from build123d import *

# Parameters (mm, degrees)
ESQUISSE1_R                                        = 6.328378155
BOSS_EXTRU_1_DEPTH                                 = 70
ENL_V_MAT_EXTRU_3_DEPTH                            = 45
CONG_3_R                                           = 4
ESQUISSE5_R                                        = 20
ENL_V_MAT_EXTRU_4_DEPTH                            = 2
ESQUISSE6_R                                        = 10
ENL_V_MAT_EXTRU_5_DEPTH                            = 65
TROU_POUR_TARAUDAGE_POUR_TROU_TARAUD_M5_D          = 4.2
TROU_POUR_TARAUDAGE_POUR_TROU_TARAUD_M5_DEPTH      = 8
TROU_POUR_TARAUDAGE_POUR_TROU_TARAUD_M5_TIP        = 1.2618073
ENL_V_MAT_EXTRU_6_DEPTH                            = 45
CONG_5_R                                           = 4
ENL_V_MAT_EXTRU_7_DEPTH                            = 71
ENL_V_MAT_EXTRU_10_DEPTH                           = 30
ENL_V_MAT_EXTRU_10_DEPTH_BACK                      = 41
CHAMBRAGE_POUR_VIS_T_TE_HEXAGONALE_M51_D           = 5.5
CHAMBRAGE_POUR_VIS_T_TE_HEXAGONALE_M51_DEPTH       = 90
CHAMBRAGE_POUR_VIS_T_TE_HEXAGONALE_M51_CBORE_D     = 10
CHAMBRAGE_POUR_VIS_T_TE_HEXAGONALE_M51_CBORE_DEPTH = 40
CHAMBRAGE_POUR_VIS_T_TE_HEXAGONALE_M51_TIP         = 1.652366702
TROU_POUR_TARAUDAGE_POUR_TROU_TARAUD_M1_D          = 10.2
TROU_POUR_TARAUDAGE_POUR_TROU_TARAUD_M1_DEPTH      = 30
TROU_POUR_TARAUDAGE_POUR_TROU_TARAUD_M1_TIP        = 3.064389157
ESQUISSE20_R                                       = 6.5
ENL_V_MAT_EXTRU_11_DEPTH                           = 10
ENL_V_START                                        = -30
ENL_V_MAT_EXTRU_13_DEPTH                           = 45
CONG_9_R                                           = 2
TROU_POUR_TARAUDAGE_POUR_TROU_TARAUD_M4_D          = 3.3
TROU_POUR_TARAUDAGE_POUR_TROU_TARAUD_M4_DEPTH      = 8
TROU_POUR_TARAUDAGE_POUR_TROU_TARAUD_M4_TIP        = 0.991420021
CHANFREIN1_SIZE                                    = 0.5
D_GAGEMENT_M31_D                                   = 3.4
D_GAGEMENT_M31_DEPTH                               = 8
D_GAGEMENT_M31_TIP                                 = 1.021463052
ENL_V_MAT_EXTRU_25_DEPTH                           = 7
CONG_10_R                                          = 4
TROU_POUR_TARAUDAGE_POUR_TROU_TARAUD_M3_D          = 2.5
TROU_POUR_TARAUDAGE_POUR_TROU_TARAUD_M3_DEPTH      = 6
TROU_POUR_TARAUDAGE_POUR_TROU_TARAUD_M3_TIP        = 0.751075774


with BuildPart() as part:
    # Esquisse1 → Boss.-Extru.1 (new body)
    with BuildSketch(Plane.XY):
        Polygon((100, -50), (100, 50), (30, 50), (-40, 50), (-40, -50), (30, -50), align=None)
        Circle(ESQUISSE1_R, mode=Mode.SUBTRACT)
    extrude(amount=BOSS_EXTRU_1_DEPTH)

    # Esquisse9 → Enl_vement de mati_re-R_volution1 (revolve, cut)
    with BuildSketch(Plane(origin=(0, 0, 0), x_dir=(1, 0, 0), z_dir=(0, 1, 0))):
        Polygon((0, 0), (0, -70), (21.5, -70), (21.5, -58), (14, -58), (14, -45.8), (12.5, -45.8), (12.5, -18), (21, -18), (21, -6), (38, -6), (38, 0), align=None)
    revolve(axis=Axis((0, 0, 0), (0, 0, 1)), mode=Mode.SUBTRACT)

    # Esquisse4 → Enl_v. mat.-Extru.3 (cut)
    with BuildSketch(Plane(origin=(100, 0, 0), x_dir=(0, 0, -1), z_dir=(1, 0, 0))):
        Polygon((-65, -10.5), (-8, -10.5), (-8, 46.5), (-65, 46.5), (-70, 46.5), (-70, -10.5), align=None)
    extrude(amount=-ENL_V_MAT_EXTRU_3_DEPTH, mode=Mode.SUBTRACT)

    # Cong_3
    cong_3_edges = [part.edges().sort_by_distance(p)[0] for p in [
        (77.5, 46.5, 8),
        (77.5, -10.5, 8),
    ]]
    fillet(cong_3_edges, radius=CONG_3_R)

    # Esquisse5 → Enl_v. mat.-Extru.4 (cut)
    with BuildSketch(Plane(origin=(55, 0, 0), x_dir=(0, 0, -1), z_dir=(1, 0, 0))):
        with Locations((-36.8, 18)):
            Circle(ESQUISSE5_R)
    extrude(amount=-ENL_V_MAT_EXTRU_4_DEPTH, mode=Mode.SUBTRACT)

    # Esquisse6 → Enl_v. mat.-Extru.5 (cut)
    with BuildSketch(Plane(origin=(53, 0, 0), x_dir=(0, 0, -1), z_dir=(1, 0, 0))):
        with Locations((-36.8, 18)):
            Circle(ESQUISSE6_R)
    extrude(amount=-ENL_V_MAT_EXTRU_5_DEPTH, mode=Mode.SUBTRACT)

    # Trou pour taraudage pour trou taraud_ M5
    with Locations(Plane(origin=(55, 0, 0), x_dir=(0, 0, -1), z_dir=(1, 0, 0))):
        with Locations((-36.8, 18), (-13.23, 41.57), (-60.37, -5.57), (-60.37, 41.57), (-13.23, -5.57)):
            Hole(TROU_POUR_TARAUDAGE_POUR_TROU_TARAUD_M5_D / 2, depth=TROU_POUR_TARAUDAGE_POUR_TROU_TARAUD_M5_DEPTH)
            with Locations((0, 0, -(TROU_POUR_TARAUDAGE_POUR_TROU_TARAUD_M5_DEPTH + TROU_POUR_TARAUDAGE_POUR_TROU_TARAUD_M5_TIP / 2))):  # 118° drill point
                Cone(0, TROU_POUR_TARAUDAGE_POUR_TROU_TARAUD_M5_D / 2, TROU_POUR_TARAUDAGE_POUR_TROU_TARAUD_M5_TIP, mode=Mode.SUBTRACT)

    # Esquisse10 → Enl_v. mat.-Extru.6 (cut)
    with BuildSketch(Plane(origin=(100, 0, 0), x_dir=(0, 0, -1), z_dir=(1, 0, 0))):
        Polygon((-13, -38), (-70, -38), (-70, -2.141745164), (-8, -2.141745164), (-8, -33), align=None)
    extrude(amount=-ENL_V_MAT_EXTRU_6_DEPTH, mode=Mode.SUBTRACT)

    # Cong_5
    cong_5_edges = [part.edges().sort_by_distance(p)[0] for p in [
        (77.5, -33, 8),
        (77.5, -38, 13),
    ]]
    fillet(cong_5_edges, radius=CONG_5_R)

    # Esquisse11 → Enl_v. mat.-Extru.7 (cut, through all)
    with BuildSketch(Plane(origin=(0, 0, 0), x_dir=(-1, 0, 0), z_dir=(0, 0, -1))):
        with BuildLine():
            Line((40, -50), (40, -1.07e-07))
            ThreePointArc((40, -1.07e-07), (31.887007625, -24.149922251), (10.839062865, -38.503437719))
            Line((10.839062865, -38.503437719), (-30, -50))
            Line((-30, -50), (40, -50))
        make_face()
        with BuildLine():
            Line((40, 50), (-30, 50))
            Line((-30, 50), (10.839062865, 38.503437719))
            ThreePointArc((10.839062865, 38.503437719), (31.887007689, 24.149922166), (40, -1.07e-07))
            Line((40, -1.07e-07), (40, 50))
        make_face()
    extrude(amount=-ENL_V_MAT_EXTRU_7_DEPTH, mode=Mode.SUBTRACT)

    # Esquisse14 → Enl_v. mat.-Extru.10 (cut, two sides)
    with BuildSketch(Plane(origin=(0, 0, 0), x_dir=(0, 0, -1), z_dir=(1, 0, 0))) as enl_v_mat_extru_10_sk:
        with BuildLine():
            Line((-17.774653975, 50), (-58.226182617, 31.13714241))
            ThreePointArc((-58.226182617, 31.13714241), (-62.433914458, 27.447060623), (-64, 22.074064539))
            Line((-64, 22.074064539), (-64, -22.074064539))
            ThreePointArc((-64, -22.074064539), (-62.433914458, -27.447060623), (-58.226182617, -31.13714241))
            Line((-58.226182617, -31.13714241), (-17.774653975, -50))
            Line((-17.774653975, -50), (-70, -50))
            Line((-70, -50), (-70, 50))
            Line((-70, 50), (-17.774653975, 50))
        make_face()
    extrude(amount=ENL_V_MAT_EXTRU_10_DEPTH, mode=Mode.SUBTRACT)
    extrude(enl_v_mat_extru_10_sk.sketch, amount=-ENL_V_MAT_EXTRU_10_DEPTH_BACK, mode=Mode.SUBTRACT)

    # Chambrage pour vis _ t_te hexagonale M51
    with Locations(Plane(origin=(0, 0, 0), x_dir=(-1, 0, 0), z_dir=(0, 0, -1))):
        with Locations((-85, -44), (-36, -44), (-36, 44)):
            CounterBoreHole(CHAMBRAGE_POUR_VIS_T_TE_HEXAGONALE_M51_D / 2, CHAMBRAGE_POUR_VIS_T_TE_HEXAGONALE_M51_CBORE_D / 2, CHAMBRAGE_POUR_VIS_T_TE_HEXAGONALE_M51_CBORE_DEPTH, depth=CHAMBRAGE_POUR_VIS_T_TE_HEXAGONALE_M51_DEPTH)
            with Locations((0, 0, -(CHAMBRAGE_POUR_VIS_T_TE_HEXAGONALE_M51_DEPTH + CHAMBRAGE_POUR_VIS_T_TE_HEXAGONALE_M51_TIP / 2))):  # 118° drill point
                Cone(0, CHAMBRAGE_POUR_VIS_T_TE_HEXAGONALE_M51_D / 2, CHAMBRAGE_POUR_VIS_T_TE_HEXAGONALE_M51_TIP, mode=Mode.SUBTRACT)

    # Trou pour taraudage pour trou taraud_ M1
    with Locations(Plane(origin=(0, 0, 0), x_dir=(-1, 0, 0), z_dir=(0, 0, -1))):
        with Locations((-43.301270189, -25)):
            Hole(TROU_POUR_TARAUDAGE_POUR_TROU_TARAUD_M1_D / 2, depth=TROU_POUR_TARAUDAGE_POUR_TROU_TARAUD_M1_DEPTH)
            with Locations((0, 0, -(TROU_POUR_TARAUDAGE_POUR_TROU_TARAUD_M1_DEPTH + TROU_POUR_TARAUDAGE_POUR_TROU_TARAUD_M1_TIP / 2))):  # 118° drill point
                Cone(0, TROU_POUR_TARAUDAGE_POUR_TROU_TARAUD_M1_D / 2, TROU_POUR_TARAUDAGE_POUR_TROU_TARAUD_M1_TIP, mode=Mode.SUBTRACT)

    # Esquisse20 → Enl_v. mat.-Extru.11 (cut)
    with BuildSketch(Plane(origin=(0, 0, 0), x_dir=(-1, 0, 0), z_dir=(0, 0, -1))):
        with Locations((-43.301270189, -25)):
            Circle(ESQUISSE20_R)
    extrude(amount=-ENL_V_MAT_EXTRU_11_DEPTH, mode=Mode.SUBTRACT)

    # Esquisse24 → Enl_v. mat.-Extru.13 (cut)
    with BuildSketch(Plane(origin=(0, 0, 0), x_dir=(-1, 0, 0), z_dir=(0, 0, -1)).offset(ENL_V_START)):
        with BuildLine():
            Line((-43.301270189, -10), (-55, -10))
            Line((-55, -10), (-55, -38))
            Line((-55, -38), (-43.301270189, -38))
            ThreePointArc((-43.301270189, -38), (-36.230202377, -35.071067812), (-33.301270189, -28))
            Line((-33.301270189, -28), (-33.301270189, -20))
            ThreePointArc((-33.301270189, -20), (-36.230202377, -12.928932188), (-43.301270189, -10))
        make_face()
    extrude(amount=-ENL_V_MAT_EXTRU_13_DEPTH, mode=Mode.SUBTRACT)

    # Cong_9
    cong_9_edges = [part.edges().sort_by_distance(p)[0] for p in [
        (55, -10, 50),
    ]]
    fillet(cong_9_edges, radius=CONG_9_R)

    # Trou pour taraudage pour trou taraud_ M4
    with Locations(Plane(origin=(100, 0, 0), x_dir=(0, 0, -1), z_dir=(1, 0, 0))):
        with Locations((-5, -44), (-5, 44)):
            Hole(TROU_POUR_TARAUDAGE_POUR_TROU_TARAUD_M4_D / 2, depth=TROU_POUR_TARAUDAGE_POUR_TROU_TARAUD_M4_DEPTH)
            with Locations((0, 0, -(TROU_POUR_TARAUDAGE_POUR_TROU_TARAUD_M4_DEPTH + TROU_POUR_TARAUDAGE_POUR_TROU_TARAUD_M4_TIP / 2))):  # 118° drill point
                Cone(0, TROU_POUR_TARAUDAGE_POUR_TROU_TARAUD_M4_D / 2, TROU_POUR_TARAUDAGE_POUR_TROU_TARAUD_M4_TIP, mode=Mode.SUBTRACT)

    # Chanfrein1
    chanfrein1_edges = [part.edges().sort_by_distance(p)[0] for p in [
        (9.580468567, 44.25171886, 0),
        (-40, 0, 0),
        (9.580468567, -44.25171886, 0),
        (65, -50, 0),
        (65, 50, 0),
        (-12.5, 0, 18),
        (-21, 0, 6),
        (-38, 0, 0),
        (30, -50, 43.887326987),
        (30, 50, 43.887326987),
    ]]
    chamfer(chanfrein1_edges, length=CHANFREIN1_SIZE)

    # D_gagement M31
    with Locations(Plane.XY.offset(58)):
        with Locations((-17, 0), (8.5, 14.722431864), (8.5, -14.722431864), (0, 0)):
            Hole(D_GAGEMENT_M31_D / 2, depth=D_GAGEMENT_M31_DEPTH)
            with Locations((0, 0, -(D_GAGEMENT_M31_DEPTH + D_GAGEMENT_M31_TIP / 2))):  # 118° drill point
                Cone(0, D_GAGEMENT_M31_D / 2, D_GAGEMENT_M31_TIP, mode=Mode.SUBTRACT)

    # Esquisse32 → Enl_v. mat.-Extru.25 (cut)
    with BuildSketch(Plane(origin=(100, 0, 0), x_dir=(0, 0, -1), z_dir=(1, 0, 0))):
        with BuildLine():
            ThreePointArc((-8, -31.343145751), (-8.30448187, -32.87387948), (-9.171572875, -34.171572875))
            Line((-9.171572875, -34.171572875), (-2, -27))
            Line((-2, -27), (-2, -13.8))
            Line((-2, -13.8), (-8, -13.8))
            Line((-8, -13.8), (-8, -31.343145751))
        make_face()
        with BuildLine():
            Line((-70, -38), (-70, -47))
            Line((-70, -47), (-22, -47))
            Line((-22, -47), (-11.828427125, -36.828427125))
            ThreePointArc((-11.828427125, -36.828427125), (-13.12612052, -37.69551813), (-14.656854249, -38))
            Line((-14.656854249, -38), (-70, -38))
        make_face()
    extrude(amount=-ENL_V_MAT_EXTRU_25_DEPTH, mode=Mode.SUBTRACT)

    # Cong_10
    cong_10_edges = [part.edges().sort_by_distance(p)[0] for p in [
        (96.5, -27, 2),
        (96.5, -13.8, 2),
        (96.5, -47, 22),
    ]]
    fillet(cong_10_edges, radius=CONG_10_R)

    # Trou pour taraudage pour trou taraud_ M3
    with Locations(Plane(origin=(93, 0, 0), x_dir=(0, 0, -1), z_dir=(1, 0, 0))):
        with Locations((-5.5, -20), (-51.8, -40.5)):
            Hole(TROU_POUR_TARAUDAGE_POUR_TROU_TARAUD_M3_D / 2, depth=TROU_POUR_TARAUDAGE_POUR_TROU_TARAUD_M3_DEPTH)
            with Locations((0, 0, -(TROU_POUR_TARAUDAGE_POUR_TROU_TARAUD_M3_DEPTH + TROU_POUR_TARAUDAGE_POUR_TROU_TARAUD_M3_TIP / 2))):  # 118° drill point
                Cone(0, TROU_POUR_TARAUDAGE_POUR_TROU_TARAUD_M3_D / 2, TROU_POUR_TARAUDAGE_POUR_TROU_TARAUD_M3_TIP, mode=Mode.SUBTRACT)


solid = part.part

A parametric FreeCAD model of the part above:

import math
import FreeCAD as App
import Part
import Sketcher

V = App.Vector
Q = App.Units.Quantity


def edges_at(feature, points):
    """Names of the edges that pass closest to the given points."""
    edges = feature.Shape.Edges
    near = lambda p: min(range(len(edges)), key=lambda i: edges[i].distToShape(Part.Vertex(*p))[0])
    return sorted({f"Edge{near(p) + 1}" for p in points})


def add_polygon(sketch, points):
    """Adds a closed chain of lines whose ends are joined by coincident constraints."""
    first, n = sketch.GeometryCount, len(points)
    for a, b in zip(points, points[1:] + points[:1]):
        sketch.addGeometry(Part.LineSegment(App.Vector(*a, 0), App.Vector(*b, 0)), False)
    for i in range(n):
        sketch.addConstraint(Sketcher.Constraint("Coincident", first + i, 2, first + (i + 1) % n, 1))

doc = App.newDocument("Part")
params = doc.addObject("Spreadsheet::Sheet", "Params")
for row, (alias, value) in enumerate([
    ("sketch1_width", "140 mm"),
    ("sketch1_height", "100 mm"),
    ("pad1_length", "70 mm"),
    ("sketch2_width", "17 mm"),
    ("sketch2_width2", "38 mm"),
    ("sketch2_height", "70 mm"),
    ("sketch2_height2", "12 mm"),
    ("sketch2_height3", "6 mm"),
    ("groove_angle", "360 deg"),
    ("sketch3_width", "57 mm"),
    ("sketch3_height", "62 mm"),
    ("pocket1_length", "45 mm"),
    ("fillet_radius", "4 mm"),
    ("sketch4_diameter", "40 mm"),
    ("pocket2_length", "2 mm"),
    ("sketch5_diameter", "20 mm"),
    ("pocket3_length", "65 mm"),
    ("sketch6_diameter", "4.2 mm"),
    ("hole_diameter", "4.2 mm"),
    ("hole_depth", "8 mm"),
    ("sketch7_height", "57 mm"),
    ("sketch7_height2", "62 mm"),
    ("pocket4_length", "45 mm"),
    ("fillet2_radius", "4 mm"),
    ("sketch8_radius", "40 mm"),
    ("sketch8_width", "70 mm"),
    ("sketch8_height", "50 mm"),
    ("sketch9_radius", "10 mm"),
    ("sketch9_width", "100 mm"),
    ("pocket6_length", "30 mm"),
    ("pocket6_length2", "41 mm"),
    ("sketch10_diameter", "5.5 mm"),
    ("hole2_diameter", "5.5 mm"),
    ("hole2_depth", "90 mm"),
    ("hole2_cbore_diameter", "10 mm"),
    ("hole2_cbore_depth", "40 mm"),
    ("sketch11_diameter", "10.2 mm"),
    ("hole3_diameter", "10.2 mm"),
    ("hole3_depth", "30 mm"),
    ("sketch12_diameter", "13 mm"),
    ("pocket7_length", "10 mm"),
    ("sketch13_radius", "10 mm"),
    ("sketch13_height", "28 mm"),
    ("pocket8_length", "45 mm"),
    ("fillet3_radius", "2 mm"),
    ("sketch14_diameter", "3.3 mm"),
    ("hole4_diameter", "3.3 mm"),
    ("hole4_depth", "8 mm"),
    ("chamfer_size", "0.5 mm"),
    ("sketch15_diameter", "3.4 mm"),
    ("hole5_diameter", "3.4 mm"),
    ("hole5_depth", "8 mm"),
    ("sketch16_radius", "4 mm"),
    ("sketch16_width", "9 mm"),
    ("sketch16_height", "6 mm"),
    ("sketch16_height2", "48 mm"),
    ("sketch16_width2", "13.2 mm"),
    ("pocket9_length", "7 mm"),
    ("fillet4_radius", "4 mm"),
    ("sketch17_diameter", "2.5 mm"),
    ("hole6_diameter", "2.5 mm"),
    ("hole6_depth", "6 mm"),
], start=1):
    params.set(f"A{row}", alias)
    params.set(f"B{row}", "=" + value)
    params.setAlias(f"B{row}", alias)

body = doc.addObject("PartDesign::Body", "Body")

# Sketch on XY plane
sketch1 = doc.addObject("Sketcher::SketchObject", "Sketch")
body.addObject(sketch1)
sketch1.AttachmentSupport = (doc.XY_Plane, [""])
sketch1.MapMode = "FlatFace"
add_polygon(sketch1, [(100, -50), (100, 50), (-40, 50), (-40, -50)])  # lines 0-3
sketch1.addGeometry(Part.Circle(V(0, 0, 0), V(0, 0, 1), 6.328378), False)  # 4
sketch1.addConstraint([
    Sketcher.Constraint("Vertical", 0),
    Sketcher.Constraint("Horizontal", 1),
    Sketcher.Constraint("Vertical", 2),
    Sketcher.Constraint("Horizontal", 3),
    Sketcher.Constraint("Coincident", 4, 3, -1, 1),
    Sketcher.Constraint("DistanceX", 1, 2, 1, 1, 140.0),
    Sketcher.Constraint("DistanceY", 0, 1, 0, 2, 100.0),
    Sketcher.Constraint("DistanceX", -1, 1, 0, 2, 100.0),
    Sketcher.Constraint("DistanceY", -1, 1, 0, 2, 50.0),
    Sketcher.Constraint("Diameter", 4, 12.656756),
])
sketch1.setExpression("Constraints[9]", "Params.sketch1_width")
sketch1.setExpression("Constraints[10]", "Params.sketch1_height")
pad1 = doc.addObject("PartDesign::Pad", "Pad")
body.addObject(pad1)
pad1.Profile = sketch1
pad1.setExpression("Length", "Params.pad1_length")

# Sketch on XZ plane
sketch2 = doc.addObject("Sketcher::SketchObject", "Sketch001")
body.addObject(sketch2)
sketch2.AttachmentSupport = (doc.XZ_Plane, [""])
sketch2.MapMode = "FlatFace"
add_polygon(sketch2, [(0, 0), (0, 70), (21.5, 70), (21.5, 58), (14, 58), (14, 45.8), (12.5, 45.8), (12.5, 18), (21, 18), (21, 6), (38, 6), (38, 0)])  # lines 0-11
sketch2.addConstraint([
    Sketcher.Constraint("Vertical", 0),
    Sketcher.Constraint("Horizontal", 1),
    Sketcher.Constraint("Vertical", 2),
    Sketcher.Constraint("Horizontal", 3),
    Sketcher.Constraint("Vertical", 4),
    Sketcher.Constraint("Horizontal", 5),
    Sketcher.Constraint("Vertical", 6),
    Sketcher.Constraint("Horizontal", 7),
    Sketcher.Constraint("Vertical", 8),
    Sketcher.Constraint("Horizontal", 9),
    Sketcher.Constraint("Vertical", 10),
    Sketcher.Constraint("Horizontal", 11),
    Sketcher.Constraint("Coincident", 11, 2, -1, 1),
    Sketcher.Constraint("Equal", 2, 8),
    Sketcher.Constraint("DistanceX", 9, 1, 9, 2, 17.0),
    Sketcher.Constraint("DistanceX", 11, 2, 11, 1, 38.0),
    Sketcher.Constraint("DistanceY", 0, 1, 0, 2, 70.0),
    Sketcher.Constraint("DistanceY", 2, 2, 2, 1, 12.0),
    Sketcher.Constraint("DistanceY", 10, 2, 10, 1, 6.0),
    Sketcher.Constraint("DistanceX", 1, 1, 1, 2, 21.5),
    Sketcher.Constraint("DistanceX", 3, 2, 3, 1, 7.5),
    Sketcher.Constraint("DistanceX", 5, 2, 5, 1, 1.5),
    Sketcher.Constraint("DistanceY", 4, 2, 4, 1, 12.2),
])
sketch2.setExpression("Constraints[26]", "Params.sketch2_width")
sketch2.setExpression("Constraints[27]", "Params.sketch2_width2")
sketch2.setExpression("Constraints[28]", "Params.sketch2_height")
sketch2.setExpression("Constraints[29]", "Params.sketch2_height2")
sketch2.setExpression("Constraints[30]", "Params.sketch2_height3")
groove = doc.addObject("PartDesign::Groove", "Groove")
body.addObject(groove)
groove.Profile = sketch2
groove.ReferenceAxis = (sketch2, ["V_Axis"])
groove.setExpression("Angle", "Params.groove_angle")

# Sketch on YZ plane
sketch3 = doc.addObject("Sketcher::SketchObject", "Sketch002")
body.addObject(sketch3)
sketch3.AttachmentSupport = (doc.YZ_Plane, [""])
sketch3.MapMode = "FlatFace"
sketch3.AttachmentOffset = App.Placement(V(0, 0, 100), App.Rotation())
add_polygon(sketch3, [(-10.5, 8), (46.5, 8), (46.5, 70), (-10.5, 70)])  # lines 0-3
sketch3.addConstraint([
    Sketcher.Constraint("Horizontal", 0),
    Sketcher.Constraint("Vertical", 1),
    Sketcher.Constraint("Horizontal", 2),
    Sketcher.Constraint("Vertical", 3),
    Sketcher.Constraint("DistanceX", 0, 1, 0, 2, 57.0),
    Sketcher.Constraint("DistanceY", 1, 1, 1, 2, 62.0),
    Sketcher.Constraint("DistanceY", -1, 1, 0, 2, 8.0),
    Sketcher.Constraint("DistanceX", -1, 1, 0, 2, 46.5),
])
sketch3.setExpression("Constraints[8]", "Params.sketch3_width")
sketch3.setExpression("Constraints[9]", "Params.sketch3_height")
pocket1 = doc.addObject("PartDesign::Pocket", "Pocket")
body.addObject(pocket1)
pocket1.Profile = sketch3
pocket1.setExpression("Length", "Params.pocket1_length")
doc.recompute()

fillet = doc.addObject("PartDesign::Fillet", "Fillet")
body.addObject(fillet)
fillet.Base = (pocket1, edges_at(pocket1, [(77.5, 46.5, 8), (77.5, -10.5, 8)]))
fillet.setExpression("Radius", "Params.fillet_radius")

# Sketch on YZ plane
sketch4 = doc.addObject("Sketcher::SketchObject", "Sketch003")
body.addObject(sketch4)
sketch4.AttachmentSupport = (doc.YZ_Plane, [""])
sketch4.MapMode = "FlatFace"
sketch4.AttachmentOffset = App.Placement(V(0, 0, 55), App.Rotation())
sketch4.addGeometry(Part.Circle(V(18, 36.8, 0), V(0, 0, 1), 20), False)
sketch4.addConstraint([
    Sketcher.Constraint("Diameter", 0, 40.0),
    Sketcher.Constraint("DistanceX", -1, 1, 0, 3, 18.0),
    Sketcher.Constraint("DistanceY", -1, 1, 0, 3, 36.8),
])
sketch4.setExpression("Constraints[0]", "Params.sketch4_diameter")
pocket2 = doc.addObject("PartDesign::Pocket", "Pocket001")
body.addObject(pocket2)
pocket2.Profile = sketch4
pocket2.setExpression("Length", "Params.pocket2_length")

# Sketch on YZ plane
sketch5 = doc.addObject("Sketcher::SketchObject", "Sketch004")
body.addObject(sketch5)
sketch5.AttachmentSupport = (doc.YZ_Plane, [""])
sketch5.MapMode = "FlatFace"
sketch5.AttachmentOffset = App.Placement(V(0, 0, 53), App.Rotation())
sketch5.addGeometry(Part.Circle(V(18, 36.8, 0), V(0, 0, 1), 10), False)
sketch5.addConstraint([
    Sketcher.Constraint("Diameter", 0, 20.0),
    Sketcher.Constraint("DistanceX", -1, 1, 0, 3, 18.0),
    Sketcher.Constraint("DistanceY", -1, 1, 0, 3, 36.8),
])
sketch5.setExpression("Constraints[0]", "Params.sketch5_diameter")
pocket3 = doc.addObject("PartDesign::Pocket", "Pocket002")
body.addObject(pocket3)
pocket3.Profile = sketch5
pocket3.setExpression("Length", "Params.pocket3_length")

# Sketch on YZ plane
sketch6 = doc.addObject("Sketcher::SketchObject", "Sketch005")
body.addObject(sketch6)
sketch6.AttachmentSupport = (doc.YZ_Plane, [""])
sketch6.MapMode = "FlatFace"
sketch6.AttachmentOffset = App.Placement(V(0, 0, 55), App.Rotation())
sketch6.addGeometry([
    Part.Circle(V(18, 36.8, 0), V(0, 0, 1), 2.1),  # 0
    Part.Circle(V(41.57, 13.23, 0), V(0, 0, 1), 2.1),  # 1
    Part.Circle(V(-5.57, 60.37, 0), V(0, 0, 1), 2.1),  # 2
    Part.Circle(V(41.57, 60.37, 0), V(0, 0, 1), 2.1),  # 3
    Part.Circle(V(-5.57, 13.23, 0), V(0, 0, 1), 2.1),  # 4
], False)
sketch6.addConstraint([
    Sketcher.Constraint("Equal", 0, 1),
    Sketcher.Constraint("Equal", 1, 2),
    Sketcher.Constraint("Equal", 2, 3),
    Sketcher.Constraint("Equal", 3, 4),
    Sketcher.Constraint("Horizontal", 2, 3, 3, 3),
    Sketcher.Constraint("Horizontal", 1, 3, 4, 3),
    Sketcher.Constraint("Vertical", 1, 3, 3, 3),
    Sketcher.Constraint("Vertical", 2, 3, 4, 3),
    Sketcher.Constraint("Diameter", 0, 4.2),
    Sketcher.Constraint("DistanceX", -1, 1, 0, 3, 18.0),
    Sketcher.Constraint("DistanceY", -1, 1, 0, 3, 36.8),
    Sketcher.Constraint("DistanceX", -1, 1, 1, 3, 41.57),
    Sketcher.Constraint("DistanceY", -1, 1, 1, 3, 13.23),
    Sketcher.Constraint("DistanceX", 2, 3, -1, 1, 5.57),
    Sketcher.Constraint("DistanceY", -1, 1, 2, 3, 60.37),
])
sketch6.setExpression("Constraints[8]", "Params.sketch6_diameter")
doc.recompute()
hole = doc.addObject("PartDesign::Hole", "Hole")
body.addObject(hole)
hole.Profile = sketch6
hole.ThreadType = "None"
hole.setExpression("Diameter", "Params.hole_diameter")
hole.DepthType = "Dimension"
hole.setExpression("Depth", "Params.hole_depth")
hole.DrillPoint = "Angled"
hole.DrillPointAngle = 118

# Sketch on YZ plane
sketch7 = doc.addObject("Sketcher::SketchObject", "Sketch006")
body.addObject(sketch7)
sketch7.AttachmentSupport = (doc.YZ_Plane, [""])
sketch7.MapMode = "FlatFace"
sketch7.AttachmentOffset = App.Placement(V(0, 0, 100), App.Rotation())
add_polygon(sketch7, [(-38, 70), (-38, 13), (-33, 8), (-2.141745, 8), (-2.141745, 70)])  # lines 0-4
sketch7.addConstraint([
    Sketcher.Constraint("Vertical", 0),
    Sketcher.Constraint("Horizontal", 2),
    Sketcher.Constraint("Vertical", 3),
    Sketcher.Constraint("Horizontal", 4),
    Sketcher.Constraint("DistanceY", 0, 2, 0, 1, 57.0),
    Sketcher.Constraint("DistanceY", 3, 1, 3, 2, 62.0),
    Sketcher.Constraint("Angle", 1, Q("-45 deg")),
    Sketcher.Constraint("DistanceX", 0, 2, -1, 1, 38.0),
    Sketcher.Constraint("DistanceY", -1, 1, 0, 2, 13.0),
    Sketcher.Constraint("DistanceX", 2, 1, 2, 2, 30.858255),
])
sketch7.setExpression("Constraints[9]", "Params.sketch7_height")
sketch7.setExpression("Constraints[10]", "Params.sketch7_height2")
pocket4 = doc.addObject("PartDesign::Pocket", "Pocket003")
body.addObject(pocket4)
pocket4.Profile = sketch7
pocket4.setExpression("Length", "Params.pocket4_length")
doc.recompute()

fillet2 = doc.addObject("PartDesign::Fillet", "Fillet001")
body.addObject(fillet2)
fillet2.Base = (pocket4, edges_at(pocket4, [(77.5, -33, 8), (77.5, -38, 13)]))
fillet2.setExpression("Radius", "Params.fillet2_radius")

# Sketch on XY plane
sketch8 = doc.addObject("Sketcher::SketchObject", "Sketch007")
body.addObject(sketch8)
sketch8.AttachmentSupport = (doc.XY_Plane, [""])
sketch8.MapMode = "FlatFace"
sketch8.addGeometry([
    Part.LineSegment(V(-40, -50, 0), V(-40, 0, 0)),  # 0
    Part.ArcOfCircle(Part.Circle(V(0, 0, 0), V(0, 0, 1), 40), math.radians(-180), math.radians(-105.722387)),  # 1
    Part.LineSegment(V(-10.839063, -38.503438, 0), V(30, -50, 0)),  # 2
    Part.LineSegment(V(30, -50, 0), V(-40, -50, 0)),  # 3
    Part.LineSegment(V(-40, 50, 0), V(30, 50, 0)),  # 4
    Part.LineSegment(V(30, 50, 0), V(-10.839063, 38.503438, 0)),  # 5
    Part.ArcOfCircle(Part.Circle(V(0, 0, 0), V(0, 0, 1), 40), math.radians(105.722387), math.radians(180)),  # 6
    Part.LineSegment(V(-40, 0, 0), V(-40, 50, 0)),  # 7
], False)
sketch8.addConstraint([
    Sketcher.Constraint("Tangent", 0, 2, 1, 1),
    Sketcher.Constraint("Tangent", 1, 2, 2, 1),
    Sketcher.Constraint("Coincident", 2, 2, 3, 1),
    Sketcher.Constraint("Coincident", 3, 2, 0, 1),
    Sketcher.Constraint("Coincident", 4, 2, 5, 1),
    Sketcher.Constraint("Tangent", 5, 2, 6, 1),
    Sketcher.Constraint("Tangent", 6, 2, 7, 1),
    Sketcher.Constraint("Coincident", 7, 2, 4, 1),
    Sketcher.Constraint("Vertical", 0),
    Sketcher.Constraint("Horizontal", 3),
    Sketcher.Constraint("Horizontal", 4),
    Sketcher.Constraint("Vertical", 7),
    Sketcher.Constraint("Coincident", 1, 3, -1, 1),
    Sketcher.Constraint("Coincident", 6, 3, -1, 1),
    Sketcher.Constraint("Equal", 1, 6),
    Sketcher.Constraint("Symmetric", 2, 2, 4, 2, -1),
    Sketcher.Constraint("Radius", 1, 40.0),
    Sketcher.Constraint("DistanceX", 3, 2, 3, 1, 70.0),
    Sketcher.Constraint("DistanceY", 0, 1, 0, 2, 50.0),
])
sketch8.setExpression("Constraints[16]", "Params.sketch8_radius")
sketch8.setExpression("Constraints[17]", "Params.sketch8_width")
sketch8.setExpression("Constraints[18]", "Params.sketch8_height")
pocket5 = doc.addObject("PartDesign::Pocket", "Pocket004")
body.addObject(pocket5)
pocket5.Profile = sketch8
pocket5.Type = "ThroughAll"
pocket5.Reversed = True

# Sketch on YZ plane
sketch9 = doc.addObject("Sketcher::SketchObject", "Sketch008")
body.addObject(sketch9)
sketch9.AttachmentSupport = (doc.YZ_Plane, [""])
sketch9.MapMode = "FlatFace"
sketch9.addGeometry([
    Part.LineSegment(V(31.137142, 58.226183, 0), V(50, 17.774654, 0)),  # 0
    Part.LineSegment(V(50, 17.774654, 0), V(50, 70, 0)),  # 1
    Part.LineSegment(V(50, 70, 0), V(-50, 70, 0)),  # 2
    Part.LineSegment(V(-50, 70, 0), V(-50, 17.774654, 0)),  # 3
    Part.LineSegment(V(-50, 17.774654, 0), V(-31.137142, 58.226183, 0)),  # 4
    Part.ArcOfCircle(Part.Circle(V(-22.074065, 54, 0), V(0, 0, 1), 10), math.radians(90), math.radians(155)),  # 5
    Part.LineSegment(V(-22.074065, 64, 0), V(22.074065, 64, 0)),  # 6
    Part.ArcOfCircle(Part.Circle(V(22.074065, 54, 0), V(0, 0, 1), 10), math.radians(25), math.radians(90)),  # 7
], False)
sketch9.addConstraint([
    Sketcher.Constraint("Coincident", 0, 2, 1, 1),
    Sketcher.Constraint("Coincident", 1, 2, 2, 1),
    Sketcher.Constraint("Coincident", 2, 2, 3, 1),
    Sketcher.Constraint("Coincident", 3, 2, 4, 1),
    Sketcher.Constraint("Tangent", 4, 2, 5, 2),
    Sketcher.Constraint("Tangent", 5, 1, 6, 1),
    Sketcher.Constraint("Tangent", 6, 2, 7, 2),
    Sketcher.Constraint("Tangent", 7, 1, 0, 1),
    Sketcher.Constraint("Vertical", 1),
    Sketcher.Constraint("Horizontal", 2),
    Sketcher.Constraint("Vertical", 3),
    Sketcher.Constraint("Horizontal", 6),
    Sketcher.Constraint("Equal", 5, 7),
    Sketcher.Constraint("Symmetric", 0, 2, 3, 2, -2),
    Sketcher.Constraint("Horizontal", 4, 2, 7, 1),
    Sketcher.Constraint("Radius", 5, 10.0),
    Sketcher.Constraint("DistanceX", 2, 2, 2, 1, 100.0),
    Sketcher.Constraint("Angle", 0, Q("-65 deg")),
    Sketcher.Constraint("DistanceY", -1, 1, 5, 3, 54.0),
    Sketcher.Constraint("DistanceY", -1, 1, 1, 2, 70.0),
    Sketcher.Constraint("DistanceX", 6, 1, 6, 2, 44.148129),
])
sketch9.setExpression("Constraints[15]", "Params.sketch9_radius")
sketch9.setExpression("Constraints[16]", "Params.sketch9_width")
pocket6 = doc.addObject("PartDesign::Pocket", "Pocket005")
body.addObject(pocket6)
pocket6.Profile = sketch9
pocket6.Type = "TwoLengths"
pocket6.setExpression("Length", "Params.pocket6_length")
pocket6.setExpression("Length2", "Params.pocket6_length2")
pocket6.Reversed = True

# Sketch on XY plane
sketch10 = doc.addObject("Sketcher::SketchObject", "Sketch009")
body.addObject(sketch10)
sketch10.AttachmentSupport = (doc.XY_Plane, [""])
sketch10.MapMode = "FlatFace"
sketch10.addGeometry([
    Part.Circle(V(85, -44, 0), V(0, 0, 1), 2.75),
    Part.Circle(V(36, -44, 0), V(0, 0, 1), 2.75),
    Part.Circle(V(36, 44, 0), V(0, 0, 1), 2.75),
], False)
sketch10.addConstraint([
    Sketcher.Constraint("Equal", 0, 1),
    Sketcher.Constraint("Equal", 1, 2),
    Sketcher.Constraint("Symmetric", 1, 3, 2, 3, -1),
    Sketcher.Constraint("Horizontal", 0, 3, 1, 3),
    Sketcher.Constraint("Diameter", 0, 5.5),
    Sketcher.Constraint("DistanceX", -1, 1, 0, 3, 85.0),
    Sketcher.Constraint("DistanceY", 0, 3, -1, 1, 44.0),
    Sketcher.Constraint("DistanceX", -1, 1, 1, 3, 36.0),
])
sketch10.setExpression("Constraints[4]", "Params.sketch10_diameter")
doc.recompute()
hole2 = doc.addObject("PartDesign::Hole", "Hole001")
body.addObject(hole2)
hole2.Profile = sketch10
hole2.ThreadType = "None"
hole2.setExpression("Diameter", "Params.hole2_diameter")
hole2.DepthType = "Dimension"
hole2.setExpression("Depth", "Params.hole2_depth")
hole2.DrillPoint = "Angled"
hole2.DrillPointAngle = 118
hole2.HoleCutType = "Counterbore"
hole2.setExpression("HoleCutDiameter", "Params.hole2_cbore_diameter")
hole2.setExpression("HoleCutDepth", "Params.hole2_cbore_depth")
hole2.Reversed = True

# Sketch on XY plane
sketch11 = doc.addObject("Sketcher::SketchObject", "Sketch010")
body.addObject(sketch11)
sketch11.AttachmentSupport = (doc.XY_Plane, [""])
sketch11.MapMode = "FlatFace"
sketch11.addGeometry(Part.Circle(V(43.30127, -25, 0), V(0, 0, 1), 5.1), False)
sketch11.addConstraint([
    Sketcher.Constraint("Diameter", 0, 10.2),
    Sketcher.Constraint("DistanceY", 0, 3, -1, 1, 25.0),
    Sketcher.Constraint("DistanceX", -1, 1, 0, 3, 43.30127),
])
sketch11.setExpression("Constraints[0]", "Params.sketch11_diameter")
doc.recompute()
hole3 = doc.addObject("PartDesign::Hole", "Hole002")
body.addObject(hole3)
hole3.Profile = sketch11
hole3.ThreadType = "None"
hole3.setExpression("Diameter", "Params.hole3_diameter")
hole3.DepthType = "Dimension"
hole3.setExpression("Depth", "Params.hole3_depth")
hole3.DrillPoint = "Angled"
hole3.DrillPointAngle = 118
hole3.Reversed = True

# Sketch on XY plane
sketch12 = doc.addObject("Sketcher::SketchObject", "Sketch011")
body.addObject(sketch12)
sketch12.AttachmentSupport = (doc.XY_Plane, [""])
sketch12.MapMode = "FlatFace"
sketch12.addGeometry(Part.Circle(V(43.30127, -25, 0), V(0, 0, 1), 6.5), False)
sketch12.addConstraint([
    Sketcher.Constraint("Diameter", 0, 13.0),
    Sketcher.Constraint("DistanceY", 0, 3, -1, 1, 25.0),
    Sketcher.Constraint("DistanceX", -1, 1, 0, 3, 43.30127),
])
sketch12.setExpression("Constraints[0]", "Params.sketch12_diameter")
pocket7 = doc.addObject("PartDesign::Pocket", "Pocket006")
body.addObject(pocket7)
pocket7.Profile = sketch12
pocket7.setExpression("Length", "Params.pocket7_length")
pocket7.Reversed = True

# Sketch on XY plane
sketch13 = doc.addObject("Sketcher::SketchObject", "Sketch012")
body.addObject(sketch13)
sketch13.AttachmentSupport = (doc.XY_Plane, [""])
sketch13.MapMode = "FlatFace"
sketch13.AttachmentOffset = App.Placement(V(0, 0, 30), App.Rotation())
sketch13.addGeometry([
    Part.LineSegment(V(43.30127, -10, 0), V(55, -10, 0)),  # 0
    Part.LineSegment(V(55, -10, 0), V(55, -38, 0)),  # 1
    Part.LineSegment(V(55, -38, 0), V(43.30127, -38, 0)),  # 2
    Part.ArcOfCircle(Part.Circle(V(43.30127, -28, 0), V(0, 0, 1), 10), math.radians(180), math.radians(270)),  # 3
    Part.LineSegment(V(33.30127, -28, 0), V(33.30127, -20, 0)),  # 4
    Part.ArcOfCircle(Part.Circle(V(43.30127, -20, 0), V(0, 0, 1), 10), math.radians(90), math.radians(180)),  # 5
], False)
sketch13.addConstraint([
    Sketcher.Constraint("Coincident", 0, 2, 1, 1),
    Sketcher.Constraint("Coincident", 1, 2, 2, 1),
    Sketcher.Constraint("Tangent", 2, 2, 3, 2),
    Sketcher.Constraint("Tangent", 3, 1, 4, 1),
    Sketcher.Constraint("Tangent", 4, 2, 5, 2),
    Sketcher.Constraint("Tangent", 5, 1, 0, 1),
    Sketcher.Constraint("Horizontal", 0),
    Sketcher.Constraint("Vertical", 1),
    Sketcher.Constraint("Horizontal", 2),
    Sketcher.Constraint("Vertical", 4),
    Sketcher.Constraint("Equal", 3, 5),
    Sketcher.Constraint("Radius", 3, 10.0),
    Sketcher.Constraint("DistanceY", 1, 2, 1, 1, 28.0),
    Sketcher.Constraint("DistanceY", 3, 3, -1, 1, 28.0),
    Sketcher.Constraint("DistanceX", -1, 1, 0, 2, 55.0),
    Sketcher.Constraint("DistanceX", 0, 1, 0, 2, 11.69873),
])
sketch13.setExpression("Constraints[11]", "Params.sketch13_radius")
sketch13.setExpression("Constraints[12]", "Params.sketch13_height")
pocket8 = doc.addObject("PartDesign::Pocket", "Pocket007")
body.addObject(pocket8)
pocket8.Profile = sketch13
pocket8.setExpression("Length", "Params.pocket8_length")
pocket8.Reversed = True
doc.recompute()

fillet3 = doc.addObject("PartDesign::Fillet", "Fillet002")
body.addObject(fillet3)
fillet3.Base = (pocket8, edges_at(pocket8, [(55, -10, 50)]))
fillet3.setExpression("Radius", "Params.fillet3_radius")

# Sketch on YZ plane
sketch14 = doc.addObject("Sketcher::SketchObject", "Sketch013")
body.addObject(sketch14)
sketch14.AttachmentSupport = (doc.YZ_Plane, [""])
sketch14.MapMode = "FlatFace"
sketch14.AttachmentOffset = App.Placement(V(0, 0, 100), App.Rotation())
sketch14.addGeometry([
    Part.Circle(V(-44, 5, 0), V(0, 0, 1), 1.65),
    Part.Circle(V(44, 5, 0), V(0, 0, 1), 1.65),
], False)
sketch14.addConstraint([
    Sketcher.Constraint("Equal", 0, 1),
    Sketcher.Constraint("Symmetric", 0, 3, 1, 3, -2),
    Sketcher.Constraint("Diameter", 0, 3.3),
    Sketcher.Constraint("DistanceX", 0, 3, -1, 1, 44.0),
    Sketcher.Constraint("DistanceY", -1, 1, 0, 3, 5.0),
])
sketch14.setExpression("Constraints[2]", "Params.sketch14_diameter")
doc.recompute()
hole4 = doc.addObject("PartDesign::Hole", "Hole003")
body.addObject(hole4)
hole4.Profile = sketch14
hole4.ThreadType = "None"
hole4.setExpression("Diameter", "Params.hole4_diameter")
hole4.DepthType = "Dimension"
hole4.setExpression("Depth", "Params.hole4_depth")
hole4.DrillPoint = "Angled"
hole4.DrillPointAngle = 118
doc.recompute()

chamfer = doc.addObject("PartDesign::Chamfer", "Chamfer")
body.addObject(chamfer)
chamfer.Base = (hole4, edges_at(hole4, [
    (9.58, 44.252, 0),
    (-31.887, 24.15, 0),
    (9.58, -44.252, 0),
    (65, -50, 0),
    (65, 50, 0),
    (-12.5, 0, 18),
    (-21, 0, 6),
    (-38, 0, 0),
    (30, -50, 43.887),
    (30, 50, 43.887),
]))
chamfer.setExpression("Size", "Params.chamfer_size")

# Sketch on XY plane
sketch15 = doc.addObject("Sketcher::SketchObject", "Sketch014")
body.addObject(sketch15)
sketch15.AttachmentSupport = (doc.XY_Plane, [""])
sketch15.MapMode = "FlatFace"
sketch15.AttachmentOffset = App.Placement(V(0, 0, 58), App.Rotation())
sketch15.addGeometry([
    Part.Circle(V(-17, 0, 0), V(0, 0, 1), 1.7),
    Part.Circle(V(8.5, 14.722432, 0), V(0, 0, 1), 1.7),
    Part.Circle(V(8.5, -14.722432, 0), V(0, 0, 1), 1.7),
    Part.Circle(V(0, 0, 0), V(0, 0, 1), 1.7),
], False)
sketch15.addConstraint([
    Sketcher.Constraint("Coincident", 3, 3, -1, 1),
    Sketcher.Constraint("Equal", 0, 1),
    Sketcher.Constraint("Equal", 1, 2),
    Sketcher.Constraint("Equal", 2, 3),
    Sketcher.Constraint("Symmetric", 1, 3, 2, 3, -1),
    Sketcher.Constraint("PointOnObject", 0, 3, -1),
    Sketcher.Constraint("Diameter", 0, 3.4),
    Sketcher.Constraint("DistanceX", 0, 3, -1, 1, 17.0),
    Sketcher.Constraint("DistanceX", -1, 1, 1, 3, 8.5),
    Sketcher.Constraint("DistanceY", -1, 1, 1, 3, 14.722432),
])
sketch15.setExpression("Constraints[6]", "Params.sketch15_diameter")
doc.recompute()
hole5 = doc.addObject("PartDesign::Hole", "Hole004")
body.addObject(hole5)
hole5.Profile = sketch15
hole5.ThreadType = "None"
hole5.setExpression("Diameter", "Params.hole5_diameter")
hole5.DepthType = "Dimension"
hole5.setExpression("Depth", "Params.hole5_depth")
hole5.DrillPoint = "Angled"
hole5.DrillPointAngle = 118

# Sketch on YZ plane
sketch16 = doc.addObject("Sketcher::SketchObject", "Sketch015")
body.addObject(sketch16)
sketch16.AttachmentSupport = (doc.YZ_Plane, [""])
sketch16.MapMode = "FlatFace"
sketch16.AttachmentOffset = App.Placement(V(0, 0, 100), App.Rotation())
sketch16.addGeometry([
    Part.ArcOfCircle(Part.Circle(V(-31.343146, 12, 0), V(0, 0, 1), 4), math.radians(-135), math.radians(-90)),  # 0
    Part.LineSegment(V(-34.171573, 9.171573, 0), V(-27, 2, 0)),  # 1
    Part.LineSegment(V(-27, 2, 0), V(-13.8, 2, 0)),  # 2
    Part.LineSegment(V(-13.8, 2, 0), V(-13.8, 8, 0)),  # 3
    Part.LineSegment(V(-13.8, 8, 0), V(-31.343146, 8, 0)),  # 4
    Part.LineSegment(V(-38, 70, 0), V(-47, 70, 0)),  # 5
    Part.LineSegment(V(-47, 70, 0), V(-47, 22, 0)),  # 6
    Part.LineSegment(V(-47, 22, 0), V(-36.828427, 11.828427, 0)),  # 7
    Part.ArcOfCircle(Part.Circle(V(-34, 14.656854, 0), V(0, 0, 1), 4), math.radians(-180), math.radians(-135)),  # 8
    Part.LineSegment(V(-38, 14.656854, 0), V(-38, 70, 0)),  # 9
], False)
sketch16.addConstraint([
    Sketcher.Constraint("Tangent", 0, 1, 1, 1),
    Sketcher.Constraint("Coincident", 1, 2, 2, 1),
    Sketcher.Constraint("Coincident", 2, 2, 3, 1),
    Sketcher.Constraint("Coincident", 3, 2, 4, 1),
    Sketcher.Constraint("Tangent", 4, 2, 0, 2),
    Sketcher.Constraint("Coincident", 5, 2, 6, 1),
    Sketcher.Constraint("Coincident", 6, 2, 7, 1),
    Sketcher.Constraint("Tangent", 7, 2, 8, 2),
    Sketcher.Constraint("Tangent", 8, 1, 9, 1),
    Sketcher.Constraint("Coincident", 9, 2, 5, 1),
    Sketcher.Constraint("Horizontal", 2),
    Sketcher.Constraint("Vertical", 3),
    Sketcher.Constraint("Horizontal", 4),
    Sketcher.Constraint("Horizontal", 5),
    Sketcher.Constraint("Vertical", 6),
    Sketcher.Constraint("Vertical", 9),
    Sketcher.Constraint("Equal", 0, 8),
    Sketcher.Constraint("Parallel", 1, 7),
    Sketcher.Constraint("Radius", 0, 4.0),
    Sketcher.Constraint("DistanceX", 5, 2, 5, 1, 9.0),
    Sketcher.Constraint("DistanceY", 3, 1, 3, 2, 6.0),
    Sketcher.Constraint("DistanceY", 6, 2, 6, 1, 48.0),
    Sketcher.Constraint("Angle", 1, Q("-45 deg")),
    Sketcher.Constraint("DistanceX", 2, 1, 2, 2, 13.2),
    Sketcher.Constraint("DistanceY", -1, 1, 0, 3, 12.0),
    Sketcher.Constraint("DistanceX", 8, 3, -1, 1, 34.0),
    Sketcher.Constraint("DistanceX", 1, 2, -1, 1, 27.0),
    Sketcher.Constraint("DistanceY", -1, 1, 5, 2, 70.0),
])
sketch16.setExpression("Constraints[18]", "Params.sketch16_radius")
sketch16.setExpression("Constraints[19]", "Params.sketch16_width")
sketch16.setExpression("Constraints[20]", "Params.sketch16_height")
sketch16.setExpression("Constraints[21]", "Params.sketch16_height2")
sketch16.setExpression("Constraints[23]", "Params.sketch16_width2")
pocket9 = doc.addObject("PartDesign::Pocket", "Pocket008")
body.addObject(pocket9)
pocket9.Profile = sketch16
pocket9.setExpression("Length", "Params.pocket9_length")
doc.recompute()

fillet4 = doc.addObject("PartDesign::Fillet", "Fillet003")
body.addObject(fillet4)
fillet4.Base = (pocket9, edges_at(pocket9, [(96.5, -27, 2), (96.5, -13.8, 2), (96.5, -47, 22)]))
fillet4.setExpression("Radius", "Params.fillet4_radius")

# Sketch on YZ plane
sketch17 = doc.addObject("Sketcher::SketchObject", "Sketch016")
body.addObject(sketch17)
sketch17.AttachmentSupport = (doc.YZ_Plane, [""])
sketch17.MapMode = "FlatFace"
sketch17.AttachmentOffset = App.Placement(V(0, 0, 93), App.Rotation())
sketch17.addGeometry([
    Part.Circle(V(-20, 5.5, 0), V(0, 0, 1), 1.25),
    Part.Circle(V(-40.5, 51.8, 0), V(0, 0, 1), 1.25),
], False)
sketch17.addConstraint([
    Sketcher.Constraint("Equal", 0, 1),
    Sketcher.Constraint("Diameter", 0, 2.5),
    Sketcher.Constraint("DistanceX", 0, 3, -1, 1, 20.0),
    Sketcher.Constraint("DistanceY", -1, 1, 0, 3, 5.5),
    Sketcher.Constraint("DistanceX", 1, 3, -1, 1, 40.5),
    Sketcher.Constraint("DistanceY", -1, 1, 1, 3, 51.8),
])
sketch17.setExpression("Constraints[1]", "Params.sketch17_diameter")
doc.recompute()
hole6 = doc.addObject("PartDesign::Hole", "Hole005")
body.addObject(hole6)
hole6.Profile = sketch17
hole6.ThreadType = "None"
hole6.setExpression("Diameter", "Params.hole6_diameter")
hole6.DepthType = "Dimension"
hole6.setExpression("Depth", "Params.hole6_depth")
hole6.DrillPoint = "Angled"
hole6.DrillPointAngle = 118

doc.recompute()
